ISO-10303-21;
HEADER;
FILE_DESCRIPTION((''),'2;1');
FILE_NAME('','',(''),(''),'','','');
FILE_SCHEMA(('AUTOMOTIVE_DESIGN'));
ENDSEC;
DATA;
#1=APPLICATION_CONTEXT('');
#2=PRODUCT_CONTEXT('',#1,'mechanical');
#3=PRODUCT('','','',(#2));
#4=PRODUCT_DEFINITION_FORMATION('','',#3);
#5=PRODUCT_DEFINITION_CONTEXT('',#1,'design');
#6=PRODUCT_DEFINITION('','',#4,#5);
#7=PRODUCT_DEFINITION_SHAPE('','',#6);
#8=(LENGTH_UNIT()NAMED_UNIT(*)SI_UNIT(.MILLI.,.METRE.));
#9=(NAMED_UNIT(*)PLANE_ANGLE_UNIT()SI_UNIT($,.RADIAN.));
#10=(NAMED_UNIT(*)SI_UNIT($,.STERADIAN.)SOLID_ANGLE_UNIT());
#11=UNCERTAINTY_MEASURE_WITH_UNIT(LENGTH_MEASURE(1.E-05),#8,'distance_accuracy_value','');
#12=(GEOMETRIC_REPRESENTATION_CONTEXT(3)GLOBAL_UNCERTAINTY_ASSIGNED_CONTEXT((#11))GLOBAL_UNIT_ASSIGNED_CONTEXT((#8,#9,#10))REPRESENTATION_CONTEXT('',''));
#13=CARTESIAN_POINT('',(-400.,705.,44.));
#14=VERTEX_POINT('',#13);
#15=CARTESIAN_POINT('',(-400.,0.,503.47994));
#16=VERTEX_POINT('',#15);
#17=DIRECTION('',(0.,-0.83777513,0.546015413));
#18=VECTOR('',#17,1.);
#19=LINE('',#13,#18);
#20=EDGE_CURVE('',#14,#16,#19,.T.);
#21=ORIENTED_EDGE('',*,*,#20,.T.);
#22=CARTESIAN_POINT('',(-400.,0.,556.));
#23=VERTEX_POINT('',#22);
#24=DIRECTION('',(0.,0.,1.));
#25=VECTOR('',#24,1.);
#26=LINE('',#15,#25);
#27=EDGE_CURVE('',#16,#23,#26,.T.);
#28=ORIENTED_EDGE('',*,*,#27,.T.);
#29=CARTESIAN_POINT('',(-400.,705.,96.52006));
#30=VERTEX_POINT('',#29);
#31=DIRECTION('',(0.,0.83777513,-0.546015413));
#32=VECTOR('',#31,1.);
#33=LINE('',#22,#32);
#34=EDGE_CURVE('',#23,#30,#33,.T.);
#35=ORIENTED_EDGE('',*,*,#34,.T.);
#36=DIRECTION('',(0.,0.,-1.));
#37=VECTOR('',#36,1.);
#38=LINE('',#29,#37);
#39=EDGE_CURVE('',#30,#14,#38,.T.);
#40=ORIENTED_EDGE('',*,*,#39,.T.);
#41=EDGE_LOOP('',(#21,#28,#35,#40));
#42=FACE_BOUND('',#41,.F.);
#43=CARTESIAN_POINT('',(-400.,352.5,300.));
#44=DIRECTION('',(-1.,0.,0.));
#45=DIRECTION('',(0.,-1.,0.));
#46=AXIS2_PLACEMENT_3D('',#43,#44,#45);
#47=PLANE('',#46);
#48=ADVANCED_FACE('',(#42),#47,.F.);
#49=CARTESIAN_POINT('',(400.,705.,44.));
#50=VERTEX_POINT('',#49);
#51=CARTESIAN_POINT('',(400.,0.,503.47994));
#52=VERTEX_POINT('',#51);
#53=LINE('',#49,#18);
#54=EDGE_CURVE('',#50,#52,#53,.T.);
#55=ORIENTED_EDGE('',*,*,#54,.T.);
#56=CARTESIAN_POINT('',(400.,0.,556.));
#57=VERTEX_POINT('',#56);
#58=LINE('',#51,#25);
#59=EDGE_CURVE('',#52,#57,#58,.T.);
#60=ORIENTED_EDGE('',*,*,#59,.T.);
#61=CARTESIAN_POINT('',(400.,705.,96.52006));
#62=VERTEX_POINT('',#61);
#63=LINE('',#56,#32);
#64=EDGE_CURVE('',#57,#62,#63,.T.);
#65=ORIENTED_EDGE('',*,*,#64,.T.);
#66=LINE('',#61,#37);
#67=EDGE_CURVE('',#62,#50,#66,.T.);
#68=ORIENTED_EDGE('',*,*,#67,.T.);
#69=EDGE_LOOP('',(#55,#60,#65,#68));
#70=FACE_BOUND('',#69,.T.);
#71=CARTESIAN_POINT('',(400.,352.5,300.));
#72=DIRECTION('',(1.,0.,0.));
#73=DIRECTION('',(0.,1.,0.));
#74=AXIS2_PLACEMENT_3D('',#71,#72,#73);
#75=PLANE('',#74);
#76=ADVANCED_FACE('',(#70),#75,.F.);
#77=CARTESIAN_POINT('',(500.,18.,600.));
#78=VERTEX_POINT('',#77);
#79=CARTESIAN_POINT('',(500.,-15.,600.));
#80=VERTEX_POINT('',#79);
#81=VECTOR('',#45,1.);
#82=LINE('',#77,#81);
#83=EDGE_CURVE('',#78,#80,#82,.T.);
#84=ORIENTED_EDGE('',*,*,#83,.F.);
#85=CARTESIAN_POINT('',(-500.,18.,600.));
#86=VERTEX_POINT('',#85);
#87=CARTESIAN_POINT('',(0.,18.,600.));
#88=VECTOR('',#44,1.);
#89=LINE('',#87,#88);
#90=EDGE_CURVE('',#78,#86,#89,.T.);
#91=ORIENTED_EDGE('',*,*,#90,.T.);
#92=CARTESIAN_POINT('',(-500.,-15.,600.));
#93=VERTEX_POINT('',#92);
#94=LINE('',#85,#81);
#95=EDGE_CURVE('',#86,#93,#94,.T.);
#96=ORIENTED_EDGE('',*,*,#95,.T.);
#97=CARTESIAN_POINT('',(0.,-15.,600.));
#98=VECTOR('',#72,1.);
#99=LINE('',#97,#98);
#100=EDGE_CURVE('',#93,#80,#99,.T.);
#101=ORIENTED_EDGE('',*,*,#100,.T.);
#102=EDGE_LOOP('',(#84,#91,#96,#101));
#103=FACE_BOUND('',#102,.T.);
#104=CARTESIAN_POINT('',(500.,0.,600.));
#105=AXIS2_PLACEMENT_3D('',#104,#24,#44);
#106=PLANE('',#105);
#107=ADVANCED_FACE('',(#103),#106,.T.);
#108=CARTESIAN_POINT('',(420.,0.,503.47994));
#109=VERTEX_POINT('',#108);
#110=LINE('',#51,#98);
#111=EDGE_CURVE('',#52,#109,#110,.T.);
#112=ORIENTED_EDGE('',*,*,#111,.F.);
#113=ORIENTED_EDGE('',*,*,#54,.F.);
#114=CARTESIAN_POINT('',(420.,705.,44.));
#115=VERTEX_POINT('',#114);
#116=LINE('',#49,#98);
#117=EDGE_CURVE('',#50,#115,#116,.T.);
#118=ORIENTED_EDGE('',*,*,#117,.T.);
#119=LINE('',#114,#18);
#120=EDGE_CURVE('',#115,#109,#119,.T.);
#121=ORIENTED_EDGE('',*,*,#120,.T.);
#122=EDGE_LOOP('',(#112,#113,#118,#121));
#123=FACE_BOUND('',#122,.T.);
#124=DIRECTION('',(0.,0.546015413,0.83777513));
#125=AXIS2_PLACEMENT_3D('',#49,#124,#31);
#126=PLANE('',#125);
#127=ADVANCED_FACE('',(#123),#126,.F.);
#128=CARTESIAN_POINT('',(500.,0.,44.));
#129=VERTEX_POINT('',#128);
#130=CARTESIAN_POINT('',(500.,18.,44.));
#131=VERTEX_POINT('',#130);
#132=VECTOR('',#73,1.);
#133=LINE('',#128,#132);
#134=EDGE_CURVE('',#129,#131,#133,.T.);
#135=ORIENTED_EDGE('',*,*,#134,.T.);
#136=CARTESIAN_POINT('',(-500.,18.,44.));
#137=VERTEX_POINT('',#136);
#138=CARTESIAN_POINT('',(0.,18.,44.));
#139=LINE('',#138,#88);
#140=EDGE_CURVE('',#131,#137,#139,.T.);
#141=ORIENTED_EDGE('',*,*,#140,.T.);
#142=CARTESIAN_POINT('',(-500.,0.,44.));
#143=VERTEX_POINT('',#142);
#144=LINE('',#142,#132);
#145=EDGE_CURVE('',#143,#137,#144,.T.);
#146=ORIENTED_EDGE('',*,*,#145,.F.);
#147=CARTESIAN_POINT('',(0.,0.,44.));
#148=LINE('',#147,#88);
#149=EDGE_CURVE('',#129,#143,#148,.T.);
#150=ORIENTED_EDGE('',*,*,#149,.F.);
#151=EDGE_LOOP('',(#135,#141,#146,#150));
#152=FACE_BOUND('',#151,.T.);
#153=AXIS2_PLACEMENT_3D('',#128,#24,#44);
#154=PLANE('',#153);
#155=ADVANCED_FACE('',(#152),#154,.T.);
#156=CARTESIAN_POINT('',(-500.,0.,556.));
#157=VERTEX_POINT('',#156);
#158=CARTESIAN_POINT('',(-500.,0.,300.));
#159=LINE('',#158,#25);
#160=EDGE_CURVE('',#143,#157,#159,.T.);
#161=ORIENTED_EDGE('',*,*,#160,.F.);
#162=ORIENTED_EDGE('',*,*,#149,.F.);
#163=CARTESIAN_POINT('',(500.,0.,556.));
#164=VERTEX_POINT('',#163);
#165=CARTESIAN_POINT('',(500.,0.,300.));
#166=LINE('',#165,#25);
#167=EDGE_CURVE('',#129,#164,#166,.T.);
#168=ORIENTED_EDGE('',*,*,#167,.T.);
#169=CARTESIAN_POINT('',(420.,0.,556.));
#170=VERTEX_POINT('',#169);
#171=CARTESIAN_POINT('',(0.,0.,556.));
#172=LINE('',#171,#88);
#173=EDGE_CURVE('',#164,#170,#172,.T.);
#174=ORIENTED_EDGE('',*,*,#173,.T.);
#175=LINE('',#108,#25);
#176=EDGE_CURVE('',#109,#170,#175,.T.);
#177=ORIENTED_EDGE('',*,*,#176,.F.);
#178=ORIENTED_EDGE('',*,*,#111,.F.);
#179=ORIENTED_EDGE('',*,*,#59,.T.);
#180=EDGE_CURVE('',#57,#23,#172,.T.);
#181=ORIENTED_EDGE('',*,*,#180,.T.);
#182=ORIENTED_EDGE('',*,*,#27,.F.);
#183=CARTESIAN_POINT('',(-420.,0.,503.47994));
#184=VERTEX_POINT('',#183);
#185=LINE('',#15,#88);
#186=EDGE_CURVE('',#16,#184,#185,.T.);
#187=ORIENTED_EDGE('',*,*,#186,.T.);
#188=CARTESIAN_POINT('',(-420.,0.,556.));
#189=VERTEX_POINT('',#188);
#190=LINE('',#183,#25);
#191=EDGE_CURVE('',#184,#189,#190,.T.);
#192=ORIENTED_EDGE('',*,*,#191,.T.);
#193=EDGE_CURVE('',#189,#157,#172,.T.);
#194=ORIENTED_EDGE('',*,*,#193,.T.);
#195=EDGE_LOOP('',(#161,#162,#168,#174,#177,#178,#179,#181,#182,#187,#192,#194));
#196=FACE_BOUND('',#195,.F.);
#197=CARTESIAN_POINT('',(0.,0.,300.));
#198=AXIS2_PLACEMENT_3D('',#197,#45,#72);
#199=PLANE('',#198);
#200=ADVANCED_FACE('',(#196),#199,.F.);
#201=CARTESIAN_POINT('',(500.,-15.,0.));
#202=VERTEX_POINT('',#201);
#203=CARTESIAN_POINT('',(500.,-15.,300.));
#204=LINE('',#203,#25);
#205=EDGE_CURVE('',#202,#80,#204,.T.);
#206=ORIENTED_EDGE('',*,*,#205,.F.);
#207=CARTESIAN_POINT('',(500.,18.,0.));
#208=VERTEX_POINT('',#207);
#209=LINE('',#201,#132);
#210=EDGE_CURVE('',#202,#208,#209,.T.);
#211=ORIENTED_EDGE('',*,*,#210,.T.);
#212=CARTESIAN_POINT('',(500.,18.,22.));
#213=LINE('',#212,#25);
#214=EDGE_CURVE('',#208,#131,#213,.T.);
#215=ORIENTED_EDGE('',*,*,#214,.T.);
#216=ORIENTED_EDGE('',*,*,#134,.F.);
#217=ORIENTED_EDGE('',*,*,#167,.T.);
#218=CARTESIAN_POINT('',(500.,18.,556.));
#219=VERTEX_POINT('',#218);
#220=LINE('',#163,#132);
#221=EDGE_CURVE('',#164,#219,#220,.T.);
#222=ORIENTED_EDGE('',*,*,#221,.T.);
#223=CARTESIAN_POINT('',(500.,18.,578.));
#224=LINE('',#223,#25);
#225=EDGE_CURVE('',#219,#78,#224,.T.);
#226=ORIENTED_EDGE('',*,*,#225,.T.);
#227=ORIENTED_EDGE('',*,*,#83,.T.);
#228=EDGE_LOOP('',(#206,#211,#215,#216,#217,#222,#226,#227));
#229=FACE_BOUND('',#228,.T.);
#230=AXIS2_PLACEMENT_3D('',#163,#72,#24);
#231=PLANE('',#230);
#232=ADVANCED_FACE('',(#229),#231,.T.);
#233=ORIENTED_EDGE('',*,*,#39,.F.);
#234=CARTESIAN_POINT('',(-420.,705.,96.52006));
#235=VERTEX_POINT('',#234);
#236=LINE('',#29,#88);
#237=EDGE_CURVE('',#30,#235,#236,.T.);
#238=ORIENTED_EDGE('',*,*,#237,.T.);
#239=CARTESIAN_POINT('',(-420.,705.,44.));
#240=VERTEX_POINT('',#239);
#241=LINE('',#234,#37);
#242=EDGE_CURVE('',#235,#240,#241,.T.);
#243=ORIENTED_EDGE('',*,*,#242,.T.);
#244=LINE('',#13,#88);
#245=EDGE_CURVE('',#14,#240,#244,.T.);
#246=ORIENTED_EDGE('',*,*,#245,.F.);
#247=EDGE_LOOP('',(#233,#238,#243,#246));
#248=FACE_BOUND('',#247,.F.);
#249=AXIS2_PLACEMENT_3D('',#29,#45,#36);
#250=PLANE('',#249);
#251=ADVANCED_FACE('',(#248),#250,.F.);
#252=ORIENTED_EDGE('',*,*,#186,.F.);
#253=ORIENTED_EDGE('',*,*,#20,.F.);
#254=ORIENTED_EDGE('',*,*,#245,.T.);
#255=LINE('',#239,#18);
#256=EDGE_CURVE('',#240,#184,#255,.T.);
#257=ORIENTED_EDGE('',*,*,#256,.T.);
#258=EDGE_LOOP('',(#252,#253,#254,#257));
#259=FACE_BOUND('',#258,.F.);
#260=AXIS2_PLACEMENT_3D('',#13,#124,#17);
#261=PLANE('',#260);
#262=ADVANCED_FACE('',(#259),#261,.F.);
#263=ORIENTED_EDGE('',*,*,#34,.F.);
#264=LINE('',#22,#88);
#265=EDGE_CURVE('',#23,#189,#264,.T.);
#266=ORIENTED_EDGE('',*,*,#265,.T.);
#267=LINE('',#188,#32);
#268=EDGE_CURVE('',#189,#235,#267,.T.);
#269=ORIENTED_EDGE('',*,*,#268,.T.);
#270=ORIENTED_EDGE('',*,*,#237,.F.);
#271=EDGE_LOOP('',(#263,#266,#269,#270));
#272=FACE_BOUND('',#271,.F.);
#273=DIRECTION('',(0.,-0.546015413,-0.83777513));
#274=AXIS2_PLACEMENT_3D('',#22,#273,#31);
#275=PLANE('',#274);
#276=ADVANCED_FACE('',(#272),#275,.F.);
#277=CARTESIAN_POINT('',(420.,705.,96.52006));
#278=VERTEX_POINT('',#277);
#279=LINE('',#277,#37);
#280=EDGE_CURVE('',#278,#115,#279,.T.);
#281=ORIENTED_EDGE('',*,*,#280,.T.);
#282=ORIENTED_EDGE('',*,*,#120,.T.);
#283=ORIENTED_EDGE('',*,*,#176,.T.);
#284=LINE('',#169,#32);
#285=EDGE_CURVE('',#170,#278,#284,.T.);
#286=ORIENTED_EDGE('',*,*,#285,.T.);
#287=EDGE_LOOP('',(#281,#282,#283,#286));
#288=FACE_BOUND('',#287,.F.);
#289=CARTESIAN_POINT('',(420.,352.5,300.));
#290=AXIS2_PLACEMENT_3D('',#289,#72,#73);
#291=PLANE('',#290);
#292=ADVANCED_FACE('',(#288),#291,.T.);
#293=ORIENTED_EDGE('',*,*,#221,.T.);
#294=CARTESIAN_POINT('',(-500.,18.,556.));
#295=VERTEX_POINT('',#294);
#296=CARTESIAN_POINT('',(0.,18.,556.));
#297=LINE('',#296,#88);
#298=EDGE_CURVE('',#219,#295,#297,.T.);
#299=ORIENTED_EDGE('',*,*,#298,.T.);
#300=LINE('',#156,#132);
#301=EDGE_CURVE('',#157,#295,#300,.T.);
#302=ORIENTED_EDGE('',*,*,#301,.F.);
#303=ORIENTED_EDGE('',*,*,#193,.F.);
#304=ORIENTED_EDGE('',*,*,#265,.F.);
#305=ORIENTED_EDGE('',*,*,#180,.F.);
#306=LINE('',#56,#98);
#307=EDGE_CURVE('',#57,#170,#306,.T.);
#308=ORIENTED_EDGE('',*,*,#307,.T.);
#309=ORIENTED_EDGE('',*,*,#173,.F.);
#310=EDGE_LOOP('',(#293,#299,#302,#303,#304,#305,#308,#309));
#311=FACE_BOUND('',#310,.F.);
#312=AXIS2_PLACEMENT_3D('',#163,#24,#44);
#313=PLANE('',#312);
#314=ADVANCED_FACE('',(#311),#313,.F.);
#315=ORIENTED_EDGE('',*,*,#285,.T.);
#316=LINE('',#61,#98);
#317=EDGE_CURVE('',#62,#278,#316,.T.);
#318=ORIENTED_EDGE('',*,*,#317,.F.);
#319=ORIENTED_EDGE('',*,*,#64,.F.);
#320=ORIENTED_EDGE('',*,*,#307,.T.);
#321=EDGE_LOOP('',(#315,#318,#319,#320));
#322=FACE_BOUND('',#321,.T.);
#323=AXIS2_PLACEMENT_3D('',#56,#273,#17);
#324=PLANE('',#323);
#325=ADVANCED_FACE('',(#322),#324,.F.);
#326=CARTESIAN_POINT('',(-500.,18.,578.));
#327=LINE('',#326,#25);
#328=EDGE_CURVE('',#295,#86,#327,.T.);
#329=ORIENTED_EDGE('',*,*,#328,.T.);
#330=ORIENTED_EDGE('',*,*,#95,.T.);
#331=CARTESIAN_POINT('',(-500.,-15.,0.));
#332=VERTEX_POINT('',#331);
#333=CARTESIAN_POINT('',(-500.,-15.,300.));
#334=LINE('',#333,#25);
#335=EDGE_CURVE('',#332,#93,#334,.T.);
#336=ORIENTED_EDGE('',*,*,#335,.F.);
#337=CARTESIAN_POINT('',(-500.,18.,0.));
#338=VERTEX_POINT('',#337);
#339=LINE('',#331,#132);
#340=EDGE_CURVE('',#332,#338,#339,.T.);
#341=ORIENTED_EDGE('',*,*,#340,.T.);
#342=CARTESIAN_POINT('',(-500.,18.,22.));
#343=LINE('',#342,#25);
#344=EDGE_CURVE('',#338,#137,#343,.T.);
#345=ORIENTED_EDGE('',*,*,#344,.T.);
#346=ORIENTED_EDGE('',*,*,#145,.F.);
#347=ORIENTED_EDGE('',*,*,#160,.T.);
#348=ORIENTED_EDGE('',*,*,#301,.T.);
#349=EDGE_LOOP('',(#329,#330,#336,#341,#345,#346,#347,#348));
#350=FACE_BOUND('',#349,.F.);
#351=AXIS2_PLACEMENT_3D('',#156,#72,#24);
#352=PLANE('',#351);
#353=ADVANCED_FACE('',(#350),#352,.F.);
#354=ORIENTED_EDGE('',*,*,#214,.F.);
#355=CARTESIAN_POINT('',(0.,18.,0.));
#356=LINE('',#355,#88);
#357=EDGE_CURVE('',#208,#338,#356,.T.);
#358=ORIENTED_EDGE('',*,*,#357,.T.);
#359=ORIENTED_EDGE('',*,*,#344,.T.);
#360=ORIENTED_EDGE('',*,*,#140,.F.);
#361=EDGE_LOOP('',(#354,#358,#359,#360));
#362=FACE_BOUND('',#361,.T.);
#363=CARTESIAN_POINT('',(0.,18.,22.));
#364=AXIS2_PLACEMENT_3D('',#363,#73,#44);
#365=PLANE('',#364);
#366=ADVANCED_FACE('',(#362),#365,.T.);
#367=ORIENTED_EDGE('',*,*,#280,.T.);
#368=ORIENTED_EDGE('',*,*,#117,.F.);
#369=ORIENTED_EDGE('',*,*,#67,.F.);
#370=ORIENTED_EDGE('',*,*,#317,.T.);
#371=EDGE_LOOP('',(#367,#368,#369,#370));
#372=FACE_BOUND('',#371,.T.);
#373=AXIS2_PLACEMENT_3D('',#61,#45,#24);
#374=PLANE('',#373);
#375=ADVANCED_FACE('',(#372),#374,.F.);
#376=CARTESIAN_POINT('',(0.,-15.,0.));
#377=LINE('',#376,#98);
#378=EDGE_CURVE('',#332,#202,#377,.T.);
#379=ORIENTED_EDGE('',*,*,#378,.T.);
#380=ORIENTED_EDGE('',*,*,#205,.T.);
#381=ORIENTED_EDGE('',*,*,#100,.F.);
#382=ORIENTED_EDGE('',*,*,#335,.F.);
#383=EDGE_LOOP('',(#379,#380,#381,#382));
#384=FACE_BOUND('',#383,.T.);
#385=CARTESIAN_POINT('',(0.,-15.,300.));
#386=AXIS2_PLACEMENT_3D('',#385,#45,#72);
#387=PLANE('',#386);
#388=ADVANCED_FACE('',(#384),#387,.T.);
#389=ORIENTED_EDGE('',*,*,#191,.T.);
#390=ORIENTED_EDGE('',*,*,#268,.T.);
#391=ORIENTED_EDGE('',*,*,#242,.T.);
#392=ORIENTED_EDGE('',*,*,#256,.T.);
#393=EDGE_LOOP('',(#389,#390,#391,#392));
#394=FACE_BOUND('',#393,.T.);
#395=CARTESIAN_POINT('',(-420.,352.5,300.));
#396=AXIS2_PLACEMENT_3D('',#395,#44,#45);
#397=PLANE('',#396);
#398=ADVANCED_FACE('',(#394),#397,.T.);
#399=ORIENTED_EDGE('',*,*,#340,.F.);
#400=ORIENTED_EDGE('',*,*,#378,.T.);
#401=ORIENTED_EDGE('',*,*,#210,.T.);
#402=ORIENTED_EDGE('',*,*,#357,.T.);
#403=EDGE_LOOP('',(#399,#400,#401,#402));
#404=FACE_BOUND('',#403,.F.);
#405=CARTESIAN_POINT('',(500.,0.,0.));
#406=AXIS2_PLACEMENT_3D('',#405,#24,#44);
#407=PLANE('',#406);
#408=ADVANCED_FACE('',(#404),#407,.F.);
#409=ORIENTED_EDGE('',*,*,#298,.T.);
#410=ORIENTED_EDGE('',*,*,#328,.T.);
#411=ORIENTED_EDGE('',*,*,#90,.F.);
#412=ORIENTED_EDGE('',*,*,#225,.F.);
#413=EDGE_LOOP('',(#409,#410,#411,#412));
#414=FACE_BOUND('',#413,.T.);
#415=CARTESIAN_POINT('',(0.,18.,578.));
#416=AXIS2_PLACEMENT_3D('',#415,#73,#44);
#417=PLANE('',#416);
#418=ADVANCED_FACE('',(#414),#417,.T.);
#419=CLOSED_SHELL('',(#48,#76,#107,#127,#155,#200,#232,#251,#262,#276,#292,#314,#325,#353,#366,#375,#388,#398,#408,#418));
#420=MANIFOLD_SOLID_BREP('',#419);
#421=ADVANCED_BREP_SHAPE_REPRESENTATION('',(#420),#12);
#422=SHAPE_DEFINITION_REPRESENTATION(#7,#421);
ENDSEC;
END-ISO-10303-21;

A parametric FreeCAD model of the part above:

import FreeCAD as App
import Part
import Sketcher
Q = App.Units.Quantity

doc = App.newDocument("Part")
params = doc.addObject("Spreadsheet::Sheet", "Params")
for row, (alias, value) in enumerate([
    ("sketch1_width", "1000 mm"),
    ("sketch1_height", "600 mm"),
    ("pad1_length", "15 mm"),
    ("sketch2_width", "1000 mm"),
    ("sketch2_height", "44 mm"),
    ("pad2_length", "18 mm"),
    ("sketch3_width", "1000 mm"),
    ("sketch3_height", "44 mm"),
    ("pad3_length", "18 mm"),
    ("pad4_length", "20 mm"),
], start=1):
    params.set(f"A{row}", alias)
    params.set(f"B{row}", "=" + value)
    params.setAlias(f"B{row}", alias)

body = doc.addObject("PartDesign::Body", "Body")

# Sketch on XZ plane
sketch1 = body.newObject("Sketcher::SketchObject", "Sketch")
sketch1.AttachmentSupport = (doc.getObject("XZ_Plane"), [""])
sketch1.MapMode = "FlatFace"
sketch1.addGeometry(Part.LineSegment(App.Vector(-500, 600, 0), App.Vector(-500, 0, 0)), False)
sketch1.addGeometry(Part.LineSegment(App.Vector(-500, 0, 0), App.Vector(500, 0, 0)), False)
sketch1.addGeometry(Part.LineSegment(App.Vector(500, 0, 0), App.Vector(500, 600, 0)), False)
sketch1.addGeometry(Part.LineSegment(App.Vector(500, 600, 0), App.Vector(-500, 600, 0)), False)
sketch1.addConstraint(Sketcher.Constraint("Coincident", 0, 2, 1, 1))
sketch1.addConstraint(Sketcher.Constraint("Coincident", 1, 2, 2, 1))
sketch1.addConstraint(Sketcher.Constraint("Coincident", 2, 2, 3, 1))
sketch1.addConstraint(Sketcher.Constraint("Coincident", 3, 2, 0, 1))
sketch1.addConstraint(Sketcher.Constraint("Vertical", 0))
sketch1.addConstraint(Sketcher.Constraint("Horizontal", 1))
sketch1.addConstraint(Sketcher.Constraint("Vertical", 2))
sketch1.addConstraint(Sketcher.Constraint("Horizontal", 3))
sketch1.addConstraint(Sketcher.Constraint("Symmetric", 0, 2, 1, 2, -1, 1))
sketch1.addConstraint(Sketcher.Constraint("DistanceX", 1, 1, 1, 2, Q("1000 mm")))
sketch1.addConstraint(Sketcher.Constraint("DistanceY", 0, 2, 0, 1, Q("600 mm")))
sketch1.setExpression("Constraints[9]", "Params.sketch1_width")
sketch1.setExpression("Constraints[10]", "Params.sketch1_height")
pad1 = body.newObject("PartDesign::Pad", "Pad")
pad1.Profile = sketch1
pad1.setExpression("Length", "Params.pad1_length")

# Sketch on XZ plane
sketch2 = body.newObject("Sketcher::SketchObject", "Sketch001")
sketch2.AttachmentSupport = (doc.getObject("XZ_Plane"), [""])
sketch2.MapMode = "FlatFace"
sketch2.addGeometry(Part.LineSegment(App.Vector(500, 44, 0), App.Vector(500, 0, 0)), False)
sketch2.addGeometry(Part.LineSegment(App.Vector(500, 0, 0), App.Vector(-500, 0, 0)), False)
sketch2.addGeometry(Part.LineSegment(App.Vector(-500, 0, 0), App.Vector(-500, 44, 0)), False)
sketch2.addGeometry(Part.LineSegment(App.Vector(-500, 44, 0), App.Vector(500, 44, 0)), False)
sketch2.addConstraint(Sketcher.Constraint("Coincident", 0, 2, 1, 1))
sketch2.addConstraint(Sketcher.Constraint("Coincident", 1, 2, 2, 1))
sketch2.addConstraint(Sketcher.Constraint("Coincident", 2, 2, 3, 1))
sketch2.addConstraint(Sketcher.Constraint("Coincident", 3, 2, 0, 1))
sketch2.addConstraint(Sketcher.Constraint("Vertical", 0))
sketch2.addConstraint(Sketcher.Constraint("Horizontal", 1))
sketch2.addConstraint(Sketcher.Constraint("Vertical", 2))
sketch2.addConstraint(Sketcher.Constraint("Horizontal", 3))
sketch2.addConstraint(Sketcher.Constraint("Symmetric", 0, 2, 1, 2, -1, 1))
sketch2.addConstraint(Sketcher.Constraint("DistanceX", 1, 2, 1, 1, Q("1000 mm")))
sketch2.addConstraint(Sketcher.Constraint("DistanceY", 0, 2, 0, 1, Q("44 mm")))
sketch2.setExpression("Constraints[9]", "Params.sketch2_width")
sketch2.setExpression("Constraints[10]", "Params.sketch2_height")
pad2 = body.newObject("PartDesign::Pad", "Pad001")
pad2.Profile = sketch2
pad2.setExpression("Length", "Params.pad2_length")
pad2.Reversed = True

# Sketch on XZ plane
sketch3 = body.newObject("Sketcher::SketchObject", "Sketch002")
sketch3.AttachmentSupport = (doc.getObject("XZ_Plane"), [""])
sketch3.MapMode = "FlatFace"
sketch3.addGeometry(Part.LineSegment(App.Vector(500, 600, 0), App.Vector(500, 556, 0)), False)
sketch3.addGeometry(Part.LineSegment(App.Vector(500, 556, 0), App.Vector(-500, 556, 0)), False)
sketch3.addGeometry(Part.LineSegment(App.Vector(-500, 556, 0), App.Vector(-500, 600, 0)), False)
sketch3.addGeometry(Part.LineSegment(App.Vector(-500, 600, 0), App.Vector(500, 600, 0)), False)
sketch3.addConstraint(Sketcher.Constraint("Coincident", 0, 2, 1, 1))
sketch3.addConstraint(Sketcher.Constraint("Coincident", 1, 2, 2, 1))
sketch3.addConstraint(Sketcher.Constraint("Coincident", 2, 2, 3, 1))
sketch3.addConstraint(Sketcher.Constraint("Coincident", 3, 2, 0, 1))
sketch3.addConstraint(Sketcher.Constraint("Vertical", 0))
sketch3.addConstraint(Sketcher.Constraint("Horizontal", 1))
sketch3.addConstraint(Sketcher.Constraint("Vertical", 2))
sketch3.addConstraint(Sketcher.Constraint("Horizontal", 3))
sketch3.addConstraint(Sketcher.Constraint("DistanceX", 1, 2, 1, 1, Q("1000 mm")))
sketch3.addConstraint(Sketcher.Constraint("DistanceY", 0, 2, 0, 1, Q("44 mm")))
sketch3.addConstraint(Sketcher.Constraint("DistanceX", -1, 1, 0, 2, Q("500 mm")))
sketch3.addConstraint(Sketcher.Constraint("DistanceY", -1, 1, 0, 2, Q("556 mm")))
sketch3.setExpression("Constraints[8]", "Params.sketch3_width")
sketch3.setExpression("Constraints[9]", "Params.sketch3_height")
pad3 = body.newObject("PartDesign::Pad", "Pad002")
pad3.Profile = sketch3
pad3.setExpression("Length", "Params.pad3_length")
pad3.Reversed = True

# Sketch on YZ plane
sketch4 = body.newObject("Sketcher::SketchObject", "Sketch003")
sketch4.AttachmentSupport = (doc.getObject("YZ_Plane"), [""])
sketch4.MapMode = "FlatFace"
sketch4.AttachmentOffset = App.Placement(App.Vector(0, 0, -400), App.Rotation())
sketch4.addGeometry(Part.LineSegment(App.Vector(0, 503.47994, 0), App.Vector(0, 556, 0)), False)
sketch4.addGeometry(Part.LineSegment(App.Vector(0, 556, 0), App.Vector(705, 96.52006, 0)), False)
sketch4.addGeometry(Part.LineSegment(App.Vector(705, 96.52006, 0), App.Vector(705, 44, 0)), False)
sketch4.addGeometry(Part.LineSegment(App.Vector(705, 44, 0), App.Vector(0, 503.47994, 0)), False)
sketch4.addConstraint(Sketcher.Constraint("Coincident", 0, 2, 1, 1))
sketch4.addConstraint(Sketcher.Constraint("Coincident", 1, 2, 2, 1))
sketch4.addConstraint(Sketcher.Constraint("Coincident", 2, 2, 3, 1))
sketch4.addConstraint(Sketcher.Constraint("Coincident", 3, 2, 0, 1))
sketch4.addConstraint(Sketcher.Constraint("Vertical", 0))
sketch4.addConstraint(Sketcher.Constraint("Vertical", 2))
sketch4.addConstraint(Sketcher.Constraint("PointOnObject", 0, 2, -2))
sketch4.addConstraint(Sketcher.Constraint("Parallel", 1, 3))
sketch4.addConstraint(Sketcher.Constraint("DistanceY", -1, 1, 0, 2, Q("556 mm")))
sketch4.addConstraint(Sketcher.Constraint("DistanceX", -1, 1, 1, 2, Q("705 mm")))
sketch4.addConstraint(Sketcher.Constraint("DistanceY", -1, 1, 2, 2, Q("44 mm")))
sketch4.addConstraint(Sketcher.Constraint("DistanceY", 0, 1, 0, 2, Q("52.52006 mm")))
pad4 = body.newObject("PartDesign::Pad", "Pad003")
pad4.Profile = sketch4
pad4.setExpression("Length", "Params.pad4_length")
pad4.Reversed = True
body2 = doc.addObject("PartDesign::Body", "Body001")
doc.recompute()

body2.BaseFeature = body
doc.recompute()

mirroring = doc.addObject("Part::Mirroring", "Mirroring")
mirroring.Source = body
mirroring.Base = App.Vector(0, 0, 0)
mirroring.Normal = App.Vector(1, 0, 0)
body3 = doc.addObject("PartDesign::Body", "Body002")
body3.BaseFeature = mirroring
boolean = body2.newObject("PartDesign::Boolean", "Boolean")
boolean.Type = "Fuse"
boolean.addObjects([body3])
doc.recompute()
mirroring.Visibility = False

doc.recompute()
